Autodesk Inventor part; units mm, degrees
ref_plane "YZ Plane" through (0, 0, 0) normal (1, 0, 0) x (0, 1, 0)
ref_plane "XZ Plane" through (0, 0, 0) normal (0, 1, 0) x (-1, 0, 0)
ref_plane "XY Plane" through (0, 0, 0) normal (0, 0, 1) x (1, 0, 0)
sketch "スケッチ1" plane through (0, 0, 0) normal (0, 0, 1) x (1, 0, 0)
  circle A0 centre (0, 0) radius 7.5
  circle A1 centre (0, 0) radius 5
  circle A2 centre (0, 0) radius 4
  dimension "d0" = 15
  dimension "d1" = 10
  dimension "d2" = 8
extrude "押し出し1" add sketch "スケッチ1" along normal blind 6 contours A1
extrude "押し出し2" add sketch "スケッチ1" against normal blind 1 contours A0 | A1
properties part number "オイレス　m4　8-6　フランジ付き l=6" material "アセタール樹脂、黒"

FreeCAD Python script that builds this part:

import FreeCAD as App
import Part
import Sketcher

V = App.Vector

doc = App.newDocument("Part")
params = doc.addObject("Spreadsheet::Sheet", "Params")
for row, (alias, value) in enumerate([
    ("sketch1_diameter", "10 mm"),
    ("sketch1_diameter2", "8 mm"),
    ("pad1_length", "6 mm"),
    ("sketch2_diameter", "15 mm"),
    ("sketch2_diameter2", "8 mm"),
    ("pad2_length", "1 mm"),
], start=1):
    params.set(f"A{row}", alias)
    params.set(f"B{row}", "=" + value)
    params.setAlias(f"B{row}", alias)

body = doc.addObject("PartDesign::Body", "Body")

# Sketch on XY plane
sketch1 = body.newObject("Sketcher::SketchObject", "Sketch")
sketch1.AttachmentSupport = (doc.getObject("XY_Plane"), [""])
sketch1.MapMode = "FlatFace"
sketch1.addGeometry([
    Part.Circle(V(0, 0, 0), V(0, 0, 1), 5),
    Part.Circle(V(0, 0, 0), V(0, 0, 1), 4),
], False)
sketch1.addConstraint([
    Sketcher.Constraint("Coincident", 0, 3, -1, 1),
    Sketcher.Constraint("Coincident", 1, 3, -1, 1),
    Sketcher.Constraint("Diameter", 0, 10.0),
    Sketcher.Constraint("Diameter", 1, 8.0),
])
sketch1.setExpression("Constraints[2]", "Params.sketch1_diameter")
sketch1.setExpression("Constraints[3]", "Params.sketch1_diameter2")
pad1 = body.newObject("PartDesign::Pad", "Pad")
pad1.Profile = sketch1
pad1.setExpression("Length", "Params.pad1_length")

# Sketch on XY plane
sketch2 = body.newObject("Sketcher::SketchObject", "Sketch001")
sketch2.AttachmentSupport = (doc.getObject("XY_Plane"), [""])
sketch2.MapMode = "FlatFace"
sketch2.addGeometry([
    Part.Circle(V(0, 0, 0), V(0, 0, 1), 7.5),
    Part.Circle(V(0, 0, 0), V(0, 0, 1), 4),
], False)
sketch2.addConstraint([
    Sketcher.Constraint("Coincident", 0, 3, -1, 1),
    Sketcher.Constraint("Coincident", 1, 3, -1, 1),
    Sketcher.Constraint("Diameter", 0, 15.0),
    Sketcher.Constraint("Diameter", 1, 8.0),
])
sketch2.setExpression("Constraints[2]", "Params.sketch2_diameter")
sketch2.setExpression("Constraints[3]", "Params.sketch2_diameter2")
pad2 = body.newObject("PartDesign::Pad", "Pad001")
pad2.Profile = sketch2
pad2.setExpression("Length", "Params.pad2_length")
pad2.Reversed = True

doc.recompute()
